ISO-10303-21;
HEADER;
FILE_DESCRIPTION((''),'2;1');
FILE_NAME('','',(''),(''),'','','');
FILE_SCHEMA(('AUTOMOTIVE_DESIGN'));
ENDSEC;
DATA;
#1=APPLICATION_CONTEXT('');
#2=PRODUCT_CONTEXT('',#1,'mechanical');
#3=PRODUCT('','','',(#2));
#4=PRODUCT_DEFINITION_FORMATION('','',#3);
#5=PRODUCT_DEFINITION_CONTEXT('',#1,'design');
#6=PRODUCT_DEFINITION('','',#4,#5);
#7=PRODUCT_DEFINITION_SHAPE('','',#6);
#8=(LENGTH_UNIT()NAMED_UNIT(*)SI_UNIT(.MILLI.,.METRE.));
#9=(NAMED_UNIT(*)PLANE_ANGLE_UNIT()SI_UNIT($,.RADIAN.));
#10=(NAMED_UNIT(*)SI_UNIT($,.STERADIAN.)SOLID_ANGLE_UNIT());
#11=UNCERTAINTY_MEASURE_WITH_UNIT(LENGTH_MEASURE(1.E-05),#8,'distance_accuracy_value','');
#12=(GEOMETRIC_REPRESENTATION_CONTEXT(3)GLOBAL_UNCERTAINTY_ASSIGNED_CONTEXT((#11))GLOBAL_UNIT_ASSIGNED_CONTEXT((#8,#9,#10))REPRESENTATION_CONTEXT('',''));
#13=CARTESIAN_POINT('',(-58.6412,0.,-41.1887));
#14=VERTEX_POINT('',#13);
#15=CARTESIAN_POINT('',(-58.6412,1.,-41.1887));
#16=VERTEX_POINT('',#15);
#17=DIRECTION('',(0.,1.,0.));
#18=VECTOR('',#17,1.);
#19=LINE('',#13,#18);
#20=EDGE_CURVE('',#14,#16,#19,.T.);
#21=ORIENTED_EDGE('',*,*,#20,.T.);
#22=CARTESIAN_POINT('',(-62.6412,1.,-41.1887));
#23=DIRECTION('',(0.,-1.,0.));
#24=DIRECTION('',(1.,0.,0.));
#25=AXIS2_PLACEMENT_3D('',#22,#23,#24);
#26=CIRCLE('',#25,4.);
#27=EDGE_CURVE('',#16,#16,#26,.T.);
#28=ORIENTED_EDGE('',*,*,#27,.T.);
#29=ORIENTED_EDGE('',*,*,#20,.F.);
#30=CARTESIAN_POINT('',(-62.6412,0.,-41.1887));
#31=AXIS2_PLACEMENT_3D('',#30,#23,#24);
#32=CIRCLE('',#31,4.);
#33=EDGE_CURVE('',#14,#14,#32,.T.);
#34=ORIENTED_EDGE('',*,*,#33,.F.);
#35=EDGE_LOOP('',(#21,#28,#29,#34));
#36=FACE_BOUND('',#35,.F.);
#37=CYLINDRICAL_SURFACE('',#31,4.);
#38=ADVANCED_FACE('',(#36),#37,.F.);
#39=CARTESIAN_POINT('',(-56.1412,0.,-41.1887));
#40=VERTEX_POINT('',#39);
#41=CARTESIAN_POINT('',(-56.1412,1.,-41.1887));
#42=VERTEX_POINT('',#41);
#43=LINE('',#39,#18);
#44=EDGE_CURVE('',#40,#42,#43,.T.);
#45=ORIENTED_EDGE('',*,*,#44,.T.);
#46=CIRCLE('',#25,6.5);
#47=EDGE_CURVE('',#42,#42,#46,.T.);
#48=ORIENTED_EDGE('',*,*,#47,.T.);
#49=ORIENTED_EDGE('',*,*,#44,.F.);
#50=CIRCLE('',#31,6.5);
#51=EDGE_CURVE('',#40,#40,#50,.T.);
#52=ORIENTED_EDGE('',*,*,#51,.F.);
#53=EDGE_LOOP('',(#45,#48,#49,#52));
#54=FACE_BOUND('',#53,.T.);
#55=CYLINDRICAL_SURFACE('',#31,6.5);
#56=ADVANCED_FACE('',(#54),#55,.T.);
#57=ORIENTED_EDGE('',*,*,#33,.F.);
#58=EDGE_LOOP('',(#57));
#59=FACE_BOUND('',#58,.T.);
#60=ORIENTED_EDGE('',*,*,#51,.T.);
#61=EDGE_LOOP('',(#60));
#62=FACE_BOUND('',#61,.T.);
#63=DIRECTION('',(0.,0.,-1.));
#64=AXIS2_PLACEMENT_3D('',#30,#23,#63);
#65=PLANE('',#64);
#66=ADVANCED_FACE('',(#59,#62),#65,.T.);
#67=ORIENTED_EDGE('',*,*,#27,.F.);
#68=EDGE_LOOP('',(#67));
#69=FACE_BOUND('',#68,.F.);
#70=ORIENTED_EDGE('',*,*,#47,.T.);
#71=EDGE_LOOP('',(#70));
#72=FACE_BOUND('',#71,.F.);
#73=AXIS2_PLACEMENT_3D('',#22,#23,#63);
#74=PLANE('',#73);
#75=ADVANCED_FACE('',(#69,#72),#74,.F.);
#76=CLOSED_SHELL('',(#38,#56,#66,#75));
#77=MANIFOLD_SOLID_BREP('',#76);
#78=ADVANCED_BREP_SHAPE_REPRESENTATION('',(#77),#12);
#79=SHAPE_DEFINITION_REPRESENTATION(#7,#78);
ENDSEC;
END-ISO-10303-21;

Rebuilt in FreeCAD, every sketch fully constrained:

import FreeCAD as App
import Part
import Sketcher

doc = App.newDocument("Part")
body = doc.addObject("PartDesign::Body", "Body")

# Sketch on XZ plane
sketch1 = doc.addObject("Sketcher::SketchObject", "Sketch")
body.addObject(sketch1)
sketch1.AttachmentSupport = (doc.XZ_Plane, [""])
sketch1.MapMode = "FlatFace"
sketch1.addGeometry([
    Part.Circle(App.Vector(-62.6, -41.2, 0), App.Vector(0, 0, 1), 6.5),
    Part.Circle(App.Vector(-62.6, -41.2, 0), App.Vector(0, 0, 1), 4),
], False)
sketch1.addConstraint([
    Sketcher.Constraint("Coincident", 1, 3, 0, 3),
    Sketcher.Constraint("Diameter", 0, 13.0),
    Sketcher.Constraint("Diameter", 1, 8.0),
    Sketcher.Constraint("DistanceX", 0, 3, -1, 1, 62.6412),
    Sketcher.Constraint("DistanceY", 0, 3, -1, 1, 41.1887),
])
pad1 = doc.addObject("PartDesign::Pad", "Pad")
body.addObject(pad1)
pad1.Profile = sketch1
pad1.Length = 1
pad1.Reversed = True

doc.recompute()
